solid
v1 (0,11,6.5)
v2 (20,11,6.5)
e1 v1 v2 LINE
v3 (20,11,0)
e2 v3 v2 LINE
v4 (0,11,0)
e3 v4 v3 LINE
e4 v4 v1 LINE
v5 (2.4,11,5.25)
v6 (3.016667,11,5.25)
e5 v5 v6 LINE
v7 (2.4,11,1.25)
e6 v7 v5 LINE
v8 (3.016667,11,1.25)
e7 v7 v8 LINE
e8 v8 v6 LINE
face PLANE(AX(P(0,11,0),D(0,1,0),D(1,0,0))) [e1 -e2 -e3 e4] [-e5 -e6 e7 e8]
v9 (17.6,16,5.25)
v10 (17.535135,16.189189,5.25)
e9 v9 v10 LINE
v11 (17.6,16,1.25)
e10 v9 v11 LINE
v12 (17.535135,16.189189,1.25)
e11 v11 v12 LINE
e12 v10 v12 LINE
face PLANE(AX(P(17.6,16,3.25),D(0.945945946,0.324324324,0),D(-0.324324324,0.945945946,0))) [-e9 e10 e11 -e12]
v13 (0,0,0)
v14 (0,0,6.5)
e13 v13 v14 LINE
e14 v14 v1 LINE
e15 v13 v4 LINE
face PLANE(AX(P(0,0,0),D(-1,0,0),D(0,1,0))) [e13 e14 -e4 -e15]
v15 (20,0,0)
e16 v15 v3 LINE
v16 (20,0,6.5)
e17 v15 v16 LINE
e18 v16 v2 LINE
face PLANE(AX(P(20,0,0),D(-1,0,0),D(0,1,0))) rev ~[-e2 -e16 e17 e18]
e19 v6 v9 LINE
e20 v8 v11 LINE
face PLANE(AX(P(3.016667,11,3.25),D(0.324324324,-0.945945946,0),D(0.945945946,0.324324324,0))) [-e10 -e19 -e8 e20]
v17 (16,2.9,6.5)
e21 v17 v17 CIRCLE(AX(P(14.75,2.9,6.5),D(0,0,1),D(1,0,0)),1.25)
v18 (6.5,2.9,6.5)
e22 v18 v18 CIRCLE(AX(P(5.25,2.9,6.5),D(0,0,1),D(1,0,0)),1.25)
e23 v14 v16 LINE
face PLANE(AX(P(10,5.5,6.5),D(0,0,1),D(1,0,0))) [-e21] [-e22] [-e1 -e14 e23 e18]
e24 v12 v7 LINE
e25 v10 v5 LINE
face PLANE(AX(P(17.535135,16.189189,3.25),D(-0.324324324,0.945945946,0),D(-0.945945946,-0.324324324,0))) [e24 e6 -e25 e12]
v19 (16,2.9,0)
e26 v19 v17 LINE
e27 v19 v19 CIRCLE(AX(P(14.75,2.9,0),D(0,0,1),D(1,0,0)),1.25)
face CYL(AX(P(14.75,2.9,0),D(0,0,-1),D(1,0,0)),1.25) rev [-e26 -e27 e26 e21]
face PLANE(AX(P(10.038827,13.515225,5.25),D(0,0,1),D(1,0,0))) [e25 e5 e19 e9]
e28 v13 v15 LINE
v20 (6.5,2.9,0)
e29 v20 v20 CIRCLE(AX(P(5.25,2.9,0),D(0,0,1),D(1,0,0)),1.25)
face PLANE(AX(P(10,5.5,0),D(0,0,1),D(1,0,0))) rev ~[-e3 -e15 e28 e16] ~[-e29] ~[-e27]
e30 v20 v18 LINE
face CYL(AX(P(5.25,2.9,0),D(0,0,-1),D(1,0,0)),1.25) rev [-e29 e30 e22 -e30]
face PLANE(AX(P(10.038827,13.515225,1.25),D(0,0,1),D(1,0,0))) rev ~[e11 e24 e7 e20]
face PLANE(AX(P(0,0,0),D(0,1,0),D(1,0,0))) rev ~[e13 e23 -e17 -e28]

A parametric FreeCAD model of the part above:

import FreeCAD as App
import Part
import Sketcher
from FreeCAD import Vector


def add_polygon(sketch, points):
    """Adds a closed chain of lines whose ends are joined by coincident constraints."""
    first, n = sketch.GeometryCount, len(points)
    for a, b in zip(points, points[1:] + points[:1]):
        sketch.addGeometry(Part.LineSegment(App.Vector(*a, 0), App.Vector(*b, 0)), False)
    for i in range(n):
        sketch.addConstraint(Sketcher.Constraint("Coincident", first + i, 2, first + (i + 1) % n, 1))

doc = App.newDocument("Part")
body = doc.addObject("PartDesign::Body", "Body")

# Sketch on XY plane
sketch1 = body.newObject("Sketcher::SketchObject", "Sketch")
sketch1.AttachmentSupport = (doc.getObject("XY_Plane"), [""])
sketch1.MapMode = "FlatFace"
add_polygon(sketch1, [(0, 11), (0, 0), (20, 0), (20, 11)])  # lines 0-3
sketch1.addGeometry(Part.Circle(Vector(5.25, 2.9, 0), Vector(0, 0, 1), 1.25), False)  # 4
sketch1.addGeometry(Part.Circle(Vector(14.75, 2.9, 0), Vector(0, 0, 1), 1.25), False)  # 5
sketch1.addConstraint(Sketcher.Constraint("Vertical", 0))
sketch1.addConstraint(Sketcher.Constraint("Horizontal", 1))
sketch1.addConstraint(Sketcher.Constraint("Vertical", 2))
sketch1.addConstraint(Sketcher.Constraint("Horizontal", 3))
sketch1.addConstraint(Sketcher.Constraint("Coincident", 0, 2, -1, 1))
sketch1.addConstraint(Sketcher.Constraint("Equal", 4, 5))
sketch1.addConstraint(Sketcher.Constraint("Horizontal", 4, 3, 5, 3))
sketch1.addConstraint(Sketcher.Constraint("Diameter", 4, 2.5))
sketch1.addConstraint(Sketcher.Constraint("DistanceX", 1, 1, 1, 2, 20.0))
sketch1.addConstraint(Sketcher.Constraint("DistanceY", 0, 2, 0, 1, 11.0))
sketch1.addConstraint(Sketcher.Constraint("DistanceY", -1, 1, 4, 3, 2.9))
sketch1.addConstraint(Sketcher.Constraint("DistanceX", 4, 3, 5, 3, 9.5))
sketch1.addConstraint(Sketcher.Constraint("DistanceX", -1, 1, 4, 3, 5.25))
pad1 = body.newObject("PartDesign::Pad", "Pad")
pad1.Profile = sketch1
pad1.Length = 6.5

# Sketch on XY plane
sketch2 = body.newObject("Sketcher::SketchObject", "Sketch001")
sketch2.AttachmentSupport = (doc.getObject("XY_Plane"), [""])
sketch2.MapMode = "FlatFace"
sketch2.AttachmentOffset = App.Placement(Vector(0, 0, 3.25), App.Rotation())
add_polygon(sketch2, [(17.535135, 16.189189), (2.4, 11), (3.016667, 11), (17.6, 16)])  # lines 0-3
sketch2.addConstraint(Sketcher.Constraint("Horizontal", 1))
sketch2.addConstraint(Sketcher.Constraint("Parallel", 0, 2))
sketch2.addConstraint(Sketcher.Constraint("Perpendicular", 2, 3))
sketch2.addConstraint(Sketcher.Constraint("Distance", 0, 16.0))
sketch2.addConstraint(Sketcher.Constraint("DistanceY", -1, 1, 0, 2, 11.0))
sketch2.addConstraint(Sketcher.Constraint("DistanceY", -1, 1, 2, 2, 16.0))
sketch2.addConstraint(Sketcher.Constraint("Distance", 3, 0.2))
sketch2.addConstraint(Sketcher.Constraint("DistanceX", -1, 1, 0, 2, 2.4))
pad2 = body.newObject("PartDesign::Pad", "Pad001")
pad2.Profile = sketch2
pad2.Length = 4
pad2.Midplane = True

doc.recompute()
